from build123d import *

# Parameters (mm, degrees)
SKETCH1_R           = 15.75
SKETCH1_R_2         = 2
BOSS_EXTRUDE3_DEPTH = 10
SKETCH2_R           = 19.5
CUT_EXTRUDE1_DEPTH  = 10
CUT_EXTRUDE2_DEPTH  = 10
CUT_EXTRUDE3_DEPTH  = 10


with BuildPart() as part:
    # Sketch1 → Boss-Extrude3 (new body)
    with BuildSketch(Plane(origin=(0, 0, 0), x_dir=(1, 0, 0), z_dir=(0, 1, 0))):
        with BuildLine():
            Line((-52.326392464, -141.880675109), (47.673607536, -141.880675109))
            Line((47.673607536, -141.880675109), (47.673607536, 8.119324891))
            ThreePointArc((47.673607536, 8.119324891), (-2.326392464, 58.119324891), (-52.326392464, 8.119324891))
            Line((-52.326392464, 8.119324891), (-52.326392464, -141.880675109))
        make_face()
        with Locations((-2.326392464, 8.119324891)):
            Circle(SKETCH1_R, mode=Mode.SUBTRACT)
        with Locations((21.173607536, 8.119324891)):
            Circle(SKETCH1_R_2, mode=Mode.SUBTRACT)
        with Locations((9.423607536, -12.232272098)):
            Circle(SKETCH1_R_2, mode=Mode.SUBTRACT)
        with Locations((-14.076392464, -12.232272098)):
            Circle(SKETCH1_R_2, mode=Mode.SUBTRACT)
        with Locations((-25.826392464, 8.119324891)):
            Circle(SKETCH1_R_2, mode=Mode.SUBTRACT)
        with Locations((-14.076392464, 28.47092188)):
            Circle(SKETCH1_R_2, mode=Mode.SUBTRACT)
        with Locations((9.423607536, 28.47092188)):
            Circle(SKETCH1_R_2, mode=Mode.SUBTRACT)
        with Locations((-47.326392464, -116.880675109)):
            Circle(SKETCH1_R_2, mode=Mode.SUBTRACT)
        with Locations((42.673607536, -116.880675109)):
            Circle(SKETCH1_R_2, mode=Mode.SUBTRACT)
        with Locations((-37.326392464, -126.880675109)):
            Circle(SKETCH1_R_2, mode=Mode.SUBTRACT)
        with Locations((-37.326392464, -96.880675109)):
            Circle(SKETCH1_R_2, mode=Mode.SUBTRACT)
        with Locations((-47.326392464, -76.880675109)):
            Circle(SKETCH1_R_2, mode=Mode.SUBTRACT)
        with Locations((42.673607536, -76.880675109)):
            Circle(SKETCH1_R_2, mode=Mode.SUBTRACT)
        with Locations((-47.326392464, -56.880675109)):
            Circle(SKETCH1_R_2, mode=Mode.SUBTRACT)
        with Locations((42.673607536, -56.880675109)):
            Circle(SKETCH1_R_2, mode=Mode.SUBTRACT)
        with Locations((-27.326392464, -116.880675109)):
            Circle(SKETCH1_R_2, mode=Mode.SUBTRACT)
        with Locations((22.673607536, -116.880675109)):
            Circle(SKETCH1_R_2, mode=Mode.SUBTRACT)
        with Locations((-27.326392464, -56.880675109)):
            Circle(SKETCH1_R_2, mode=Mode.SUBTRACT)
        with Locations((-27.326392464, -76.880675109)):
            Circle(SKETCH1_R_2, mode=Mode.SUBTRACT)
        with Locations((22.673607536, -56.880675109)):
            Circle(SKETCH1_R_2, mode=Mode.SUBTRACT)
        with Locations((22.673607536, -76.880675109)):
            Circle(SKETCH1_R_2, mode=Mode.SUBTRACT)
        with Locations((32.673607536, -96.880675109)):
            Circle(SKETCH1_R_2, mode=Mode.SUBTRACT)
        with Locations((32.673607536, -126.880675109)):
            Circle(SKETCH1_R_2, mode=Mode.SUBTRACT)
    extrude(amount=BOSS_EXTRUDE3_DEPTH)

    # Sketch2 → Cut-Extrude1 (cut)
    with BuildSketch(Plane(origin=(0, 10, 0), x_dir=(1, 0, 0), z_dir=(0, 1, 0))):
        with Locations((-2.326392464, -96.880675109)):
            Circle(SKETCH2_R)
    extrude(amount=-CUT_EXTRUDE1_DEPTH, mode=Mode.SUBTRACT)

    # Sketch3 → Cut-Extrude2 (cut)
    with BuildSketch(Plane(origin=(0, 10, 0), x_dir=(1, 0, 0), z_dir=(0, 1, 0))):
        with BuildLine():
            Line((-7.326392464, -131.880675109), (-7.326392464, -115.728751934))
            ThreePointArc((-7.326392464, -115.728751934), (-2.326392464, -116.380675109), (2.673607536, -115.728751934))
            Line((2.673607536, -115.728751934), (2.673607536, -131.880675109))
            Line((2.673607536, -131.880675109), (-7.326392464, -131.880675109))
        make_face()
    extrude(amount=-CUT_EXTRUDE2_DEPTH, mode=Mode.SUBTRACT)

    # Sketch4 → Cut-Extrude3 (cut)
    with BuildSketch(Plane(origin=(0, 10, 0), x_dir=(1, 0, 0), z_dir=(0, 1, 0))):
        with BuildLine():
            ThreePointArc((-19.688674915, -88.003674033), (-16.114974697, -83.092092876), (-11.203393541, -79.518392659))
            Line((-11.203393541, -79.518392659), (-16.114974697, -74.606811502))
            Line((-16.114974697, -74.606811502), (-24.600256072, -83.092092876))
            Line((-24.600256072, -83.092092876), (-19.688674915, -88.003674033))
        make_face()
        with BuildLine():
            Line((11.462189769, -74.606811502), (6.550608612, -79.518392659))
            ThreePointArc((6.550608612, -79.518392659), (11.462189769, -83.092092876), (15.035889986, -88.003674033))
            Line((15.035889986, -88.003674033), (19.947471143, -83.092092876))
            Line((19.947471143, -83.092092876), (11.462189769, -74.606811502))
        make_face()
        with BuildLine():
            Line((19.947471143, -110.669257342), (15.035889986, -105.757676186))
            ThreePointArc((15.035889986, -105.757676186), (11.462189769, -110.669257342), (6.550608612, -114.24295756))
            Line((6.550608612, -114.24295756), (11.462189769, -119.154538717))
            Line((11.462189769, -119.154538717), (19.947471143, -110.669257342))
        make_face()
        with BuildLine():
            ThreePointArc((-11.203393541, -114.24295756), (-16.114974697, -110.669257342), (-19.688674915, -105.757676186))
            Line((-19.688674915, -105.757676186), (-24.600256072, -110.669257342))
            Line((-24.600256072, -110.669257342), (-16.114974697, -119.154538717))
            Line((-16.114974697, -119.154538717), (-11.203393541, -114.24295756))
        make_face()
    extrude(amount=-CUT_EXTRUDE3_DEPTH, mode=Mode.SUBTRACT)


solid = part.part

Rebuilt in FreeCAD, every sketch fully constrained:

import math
import FreeCAD as App
import Part
import Sketcher

doc = App.newDocument("Part")
body = doc.addObject("PartDesign::Body", "Body")

sketch1 = doc.addObject("Sketcher::SketchObject", "Sketch")
body.addObject(sketch1)
sketch1.AttachmentSupport = (doc.XZ_Plane, [""])
sketch1.MapMode = "FlatFace"
sketch1.addGeometry(Part.LineSegment(App.Vector(-52.3, 141.9, 0), App.Vector(47.7, 141.9, 0)), False)
sketch1.addGeometry(Part.LineSegment(App.Vector(47.7, 141.9, 0), App.Vector(47.7, -8.1, 0)), False)
sketch1.addGeometry(Part.ArcOfCircle(Part.Circle(App.Vector(-2.3, -8.1, 0), App.Vector(0, 0, 1), 50), math.radians(180), math.radians(360)), False)
sketch1.addGeometry(Part.LineSegment(App.Vector(-52.3, -8.1, 0), App.Vector(-52.3, 141.9, 0)), False)
sketch1.addGeometry(Part.Circle(App.Vector(-47.3, 116.9, 0), App.Vector(0, 0, 1), 2), False)
sketch1.addGeometry(Part.Circle(App.Vector(-37.3, 126.9, 0), App.Vector(0, 0, 1), 2), False)
sketch1.addGeometry(Part.Circle(App.Vector(-27.3, 116.9, 0), App.Vector(0, 0, 1), 2), False)
sketch1.addGeometry(Part.Circle(App.Vector(-37.3, 96.9, 0), App.Vector(0, 0, 1), 2), False)
sketch1.addGeometry(Part.Circle(App.Vector(-47.3, 76.9, 0), App.Vector(0, 0, 1), 2), False)
sketch1.addGeometry(Part.Circle(App.Vector(-27.3, 76.9, 0), App.Vector(0, 0, 1), 2), False)
sketch1.addGeometry(Part.Circle(App.Vector(-47.3, 56.9, 0), App.Vector(0, 0, 1), 2), False)
sketch1.addGeometry(Part.Circle(App.Vector(-27.3, 56.9, 0), App.Vector(0, 0, 1), 2), False)
sketch1.addGeometry(Part.Circle(App.Vector(32.7, 126.9, 0), App.Vector(0, 0, 1), 2), False)
sketch1.addGeometry(Part.Circle(App.Vector(22.7, 116.9, 0), App.Vector(0, 0, 1), 2), False)
sketch1.addGeometry(Part.Circle(App.Vector(42.7, 116.9, 0), App.Vector(0, 0, 1), 2), False)
sketch1.addGeometry(Part.Circle(App.Vector(32.7, 96.9, 0), App.Vector(0, 0, 1), 2), False)
sketch1.addGeometry(Part.Circle(App.Vector(22.7, 76.9, 0), App.Vector(0, 0, 1), 2), False)
sketch1.addGeometry(Part.Circle(App.Vector(42.7, 76.9, 0), App.Vector(0, 0, 1), 2), False)
sketch1.addGeometry(Part.Circle(App.Vector(22.7, 56.9, 0), App.Vector(0, 0, 1), 2), False)
sketch1.addGeometry(Part.Circle(App.Vector(42.7, 56.9, 0), App.Vector(0, 0, 1), 2), False)
sketch1.addGeometry(Part.Circle(App.Vector(-14.1, 12.2, 0), App.Vector(0, 0, 1), 2), False)
sketch1.addGeometry(Part.Circle(App.Vector(-25.8, -8.1, 0), App.Vector(0, 0, 1), 2), False)
sketch1.addGeometry(Part.Circle(App.Vector(-14.1, -28.5, 0), App.Vector(0, 0, 1), 2), False)
sketch1.addGeometry(Part.Circle(App.Vector(9.4, 12.2, 0), App.Vector(0, 0, 1), 2), False)
sketch1.addGeometry(Part.Circle(App.Vector(-2.3, -8.1, 0), App.Vector(0, 0, 1), 15.8), False)
sketch1.addGeometry(Part.Circle(App.Vector(9.4, -28.5, 0), App.Vector(0, 0, 1), 2), False)
sketch1.addGeometry(Part.Circle(App.Vector(21.2, -8.1, 0), App.Vector(0, 0, 1), 2), False)
sketch1.addConstraint(Sketcher.Constraint("Coincident", 0, 2, 1, 1))
sketch1.addConstraint(Sketcher.Constraint("Tangent", 1, 2, 2, 2))
sketch1.addConstraint(Sketcher.Constraint("Tangent", 2, 1, 3, 1))
sketch1.addConstraint(Sketcher.Constraint("Coincident", 3, 2, 0, 1))
sketch1.addConstraint(Sketcher.Constraint("Horizontal", 0))
sketch1.addConstraint(Sketcher.Constraint("Vertical", 1))
sketch1.addConstraint(Sketcher.Constraint("Vertical", 3))
sketch1.addConstraint(Sketcher.Constraint("Coincident", 24, 3, 2, 3))
sketch1.addConstraint(Sketcher.Constraint("Equal", 4, 5))
sketch1.addConstraint(Sketcher.Constraint("Equal", 5, 6))
sketch1.addConstraint(Sketcher.Constraint("Equal", 6, 7))
sketch1.addConstraint(Sketcher.Constraint("Equal", 7, 8))
sketch1.addConstraint(Sketcher.Constraint("Equal", 8, 9))
sketch1.addConstraint(Sketcher.Constraint("Equal", 9, 10))
sketch1.addConstraint(Sketcher.Constraint("Equal", 10, 11))
sketch1.addConstraint(Sketcher.Constraint("Equal", 11, 12))
sketch1.addConstraint(Sketcher.Constraint("Equal", 12, 13))
sketch1.addConstraint(Sketcher.Constraint("Equal", 13, 14))
sketch1.addConstraint(Sketcher.Constraint("Equal", 14, 15))
sketch1.addConstraint(Sketcher.Constraint("Equal", 15, 16))
sketch1.addConstraint(Sketcher.Constraint("Equal", 16, 17))
sketch1.addConstraint(Sketcher.Constraint("Equal", 17, 18))
sketch1.addConstraint(Sketcher.Constraint("Equal", 18, 19))
sketch1.addConstraint(Sketcher.Constraint("Equal", 19, 20))
sketch1.addConstraint(Sketcher.Constraint("Equal", 20, 21))
sketch1.addConstraint(Sketcher.Constraint("Equal", 21, 22))
sketch1.addConstraint(Sketcher.Constraint("Equal", 22, 23))
sketch1.addConstraint(Sketcher.Constraint("Equal", 23, 25))
sketch1.addConstraint(Sketcher.Constraint("Equal", 25, 26))
sketch1.addConstraint(Sketcher.Constraint("Horizontal", 4, 3, 6, 3))
sketch1.addConstraint(Sketcher.Constraint("Horizontal", 8, 3, 9, 3))
sketch1.addConstraint(Sketcher.Constraint("Horizontal", 10, 3, 11, 3))
sketch1.addConstraint(Sketcher.Constraint("Horizontal", 5, 3, 12, 3))
sketch1.addConstraint(Sketcher.Constraint("Horizontal", 6, 3, 13, 3))
sketch1.addConstraint(Sketcher.Constraint("Horizontal", 13, 3, 14, 3))
sketch1.addConstraint(Sketcher.Constraint("Horizontal", 7, 3, 15, 3))
sketch1.addConstraint(Sketcher.Constraint("Horizontal", 9, 3, 16, 3))
sketch1.addConstraint(Sketcher.Constraint("Horizontal", 16, 3, 17, 3))
sketch1.addConstraint(Sketcher.Constraint("Horizontal", 11, 3, 18, 3))
sketch1.addConstraint(Sketcher.Constraint("Horizontal", 18, 3, 19, 3))
sketch1.addConstraint(Sketcher.Constraint("Horizontal", 2, 3, 21, 3))
sketch1.addConstraint(Sketcher.Constraint("Horizontal", 20, 3, 23, 3))
sketch1.addConstraint(Sketcher.Constraint("Horizontal", 22, 3, 25, 3))
sketch1.addConstraint(Sketcher.Constraint("Horizontal", 24, 3, 26, 3))
sketch1.addConstraint(Sketcher.Constraint("Vertical", 5, 3, 7, 3))
sketch1.addConstraint(Sketcher.Constraint("Vertical", 4, 3, 8, 3))
sketch1.addConstraint(Sketcher.Constraint("Vertical", 6, 3, 9, 3))
sketch1.addConstraint(Sketcher.Constraint("Vertical", 8, 3, 10, 3))
sketch1.addConstraint(Sketcher.Constraint("Vertical", 9, 3, 11, 3))
sketch1.addConstraint(Sketcher.Constraint("Vertical", 12, 3, 15, 3))
sketch1.addConstraint(Sketcher.Constraint("Vertical", 13, 3, 16, 3))
sketch1.addConstraint(Sketcher.Constraint("Vertical", 14, 3, 17, 3))
sketch1.addConstraint(Sketcher.Constraint("Vertical", 16, 3, 18, 3))
sketch1.addConstraint(Sketcher.Constraint("Vertical", 17, 3, 19, 3))
sketch1.addConstraint(Sketcher.Constraint("Vertical", 20, 3, 22, 3))
sketch1.addConstraint(Sketcher.Constraint("Vertical", 23, 3, 25, 3))
sketch1.addConstraint(Sketcher.Constraint("Diameter", 4, 4.0))
sketch1.addConstraint(Sketcher.Constraint("Radius", 2, 50.0))
sketch1.addConstraint(Sketcher.Constraint("Diameter", 24, 31.5))
sketch1.addConstraint(Sketcher.Constraint("DistanceY", 1, 2, 1, 1, 150.0))
sketch1.addConstraint(Sketcher.Constraint("DistanceX", 4, 3, 2, 3, 45.0))
sketch1.addConstraint(Sketcher.Constraint("DistanceY", 2, 3, 4, 3, 125.0))
sketch1.addConstraint(Sketcher.Constraint("DistanceX", 4, 3, 5, 3, 10.0))
sketch1.addConstraint(Sketcher.Constraint("DistanceY", 4, 3, 5, 3, 10.0))
sketch1.addConstraint(Sketcher.Constraint("DistanceX", 5, 3, 6, 3, 10.0))
sketch1.addConstraint(Sketcher.Constraint("DistanceY", 7, 3, 4, 3, 20.0))
sketch1.addConstraint(Sketcher.Constraint("DistanceY", 8, 3, 7, 3, 20.0))
sketch1.addConstraint(Sketcher.Constraint("DistanceY", 10, 3, 8, 3, 20.0))
sketch1.addConstraint(Sketcher.Constraint("DistanceX", 6, 3, 12, 3, 60.0))
sketch1.addConstraint(Sketcher.Constraint("DistanceX", 13, 3, 12, 3, 10.0))
sketch1.addConstraint(Sketcher.Constraint("DistanceX", 12, 3, 14, 3, 10.0))
sketch1.addConstraint(Sketcher.Constraint("DistanceX", 21, 3, 2, 3, 23.5))
sketch1.addConstraint(Sketcher.Constraint("DistanceX", 20, 3, 23, 3, 23.5))
sketch1.addConstraint(Sketcher.Constraint("DistanceX", 2, 3, 26, 3, 23.5))
sketch1.addConstraint(Sketcher.Constraint("DistanceX", 20, 3, 2, 3, 11.75))
sketch1.addConstraint(Sketcher.Constraint("DistanceY", 22, 3, -1, 1, 28.470922))
sketch1.addConstraint(Sketcher.Constraint("DistanceX", 2, 3, -1, 1, 2.326392))
sketch1.addConstraint(Sketcher.Constraint("DistanceY", 2, 3, -1, 1, 8.119325))
sketch1.addConstraint(Sketcher.Constraint("DistanceY", -1, 1, 20, 3, 12.232272))
pad1 = doc.addObject("PartDesign::Pad", "Pad")
body.addObject(pad1)
pad1.Profile = sketch1
pad1.Length = 10
pad1.Reversed = True

sketch2 = doc.addObject("Sketcher::SketchObject", "Sketch001")
body.addObject(sketch2)
sketch2.AttachmentSupport = (doc.XZ_Plane, [""])
sketch2.MapMode = "FlatFace"
sketch2.AttachmentOffset = App.Placement(App.Vector(0, 0, -10), App.Rotation())
sketch2.addGeometry(Part.Circle(App.Vector(-2, 97, 0), App.Vector(0, 0, 1), 20), False)
sketch2.addConstraint(Sketcher.Constraint("Diameter", 0, 39.0))
sketch2.addConstraint(Sketcher.Constraint("DistanceX", 0, 3, -1, 1, 2.326392))
sketch2.addConstraint(Sketcher.Constraint("DistanceY", -1, 1, 0, 3, 96.880675))
pocket1 = doc.addObject("PartDesign::Pocket", "Pocket")
body.addObject(pocket1)
pocket1.Profile = sketch2
pocket1.Length = 10
pocket1.Reversed = True

sketch3 = doc.addObject("Sketcher::SketchObject", "Sketch002")
body.addObject(sketch3)
sketch3.AttachmentSupport = (doc.XZ_Plane, [""])
sketch3.MapMode = "FlatFace"
sketch3.AttachmentOffset = App.Placement(App.Vector(0, 0, -10), App.Rotation())
sketch3.addGeometry(Part.LineSegment(App.Vector(-7, 116, 0), App.Vector(-7, 132, 0)), False)
sketch3.addGeometry(Part.LineSegment(App.Vector(-7, 132, 0), App.Vector(3, 132, 0)), False)
sketch3.addGeometry(Part.LineSegment(App.Vector(3, 132, 0), App.Vector(3, 116, 0)), False)
sketch3.addGeometry(Part.ArcOfCircle(Part.Circle(App.Vector(-2, 97, 0), App.Vector(0, 0, 1), 20), math.radians(75), math.radians(105)), False)
sketch3.addConstraint(Sketcher.Constraint("Coincident", 0, 2, 1, 1))
sketch3.addConstraint(Sketcher.Constraint("Coincident", 1, 2, 2, 1))
sketch3.addConstraint(Sketcher.Constraint("Coincident", 2, 2, 3, 1))
sketch3.addConstraint(Sketcher.Constraint("Coincident", 3, 2, 0, 1))
sketch3.addConstraint(Sketcher.Constraint("Vertical", 0))
sketch3.addConstraint(Sketcher.Constraint("Horizontal", 1))
sketch3.addConstraint(Sketcher.Constraint("Vertical", 2))
sketch3.addConstraint(Sketcher.Constraint("Horizontal", 2, 2, 3, 2))
sketch3.addConstraint(Sketcher.Constraint("Radius", 3, 19.5))
sketch3.addConstraint(Sketcher.Constraint("DistanceX", 1, 1, 1, 2, 10.0))
sketch3.addConstraint(Sketcher.Constraint("DistanceY", 3, 3, 0, 2, 35.0))
sketch3.addConstraint(Sketcher.Constraint("DistanceY", -1, 1, 2, 2, 115.728752))
sketch3.addConstraint(Sketcher.Constraint("DistanceX", 3, 3, -1, 1, 2.326392))
pocket2 = doc.addObject("PartDesign::Pocket", "Pocket001")
body.addObject(pocket2)
pocket2.Profile = sketch3
pocket2.Length = 10
pocket2.Reversed = True

sketch4 = doc.addObject("Sketcher::SketchObject", "Sketch003")
body.addObject(sketch4)
sketch4.AttachmentSupport = (doc.XZ_Plane, [""])
sketch4.MapMode = "FlatFace"
sketch4.AttachmentOffset = App.Placement(App.Vector(0, 0, -10), App.Rotation())
sketch4.addGeometry(Part.ArcOfCircle(Part.Circle(App.Vector(-2, 97, 0), App.Vector(0, 0, 1), 20), math.radians(-153), math.radians(-117)), False)
sketch4.addGeometry(Part.LineSegment(App.Vector(-11, 80, 0), App.Vector(-16, 75, 0)), False)
sketch4.addGeometry(Part.LineSegment(App.Vector(-16, 75, 0), App.Vector(-25, 83, 0)), False)
sketch4.addGeometry(Part.LineSegment(App.Vector(-25, 83, 0), App.Vector(-20, 88, 0)), False)
sketch4.addGeometry(Part.LineSegment(App.Vector(11, 75, 0), App.Vector(7, 80, 0)), False)
sketch4.addGeometry(Part.ArcOfCircle(Part.Circle(App.Vector(-2, 97, 0), App.Vector(0, 0, 1), 19), math.radians(-63), math.radians(-27)), False)
sketch4.addGeometry(Part.LineSegment(App.Vector(15, 88, 0), App.Vector(20, 83, 0)), False)
sketch4.addGeometry(Part.LineSegment(App.Vector(20, 83, 0), App.Vector(11, 75, 0)), False)
sketch4.addGeometry(Part.LineSegment(App.Vector(20, 111, 0), App.Vector(15, 106, 0)), False)
sketch4.addGeometry(Part.ArcOfCircle(Part.Circle(App.Vector(-2, 97, 0), App.Vector(0, 0, 1), 20), math.radians(27), math.radians(63)), False)
sketch4.addGeometry(Part.LineSegment(App.Vector(7, 114, 0), App.Vector(11, 119, 0)), False)
sketch4.addGeometry(Part.LineSegment(App.Vector(11, 119, 0), App.Vector(20, 111, 0)), False)
sketch4.addGeometry(Part.ArcOfCircle(Part.Circle(App.Vector(-2, 97, 0), App.Vector(0, 0, 1), 20), math.radians(117), math.radians(153)), False)
sketch4.addGeometry(Part.LineSegment(App.Vector(-20, 106, 0), App.Vector(-25, 111, 0)), False)
sketch4.addGeometry(Part.LineSegment(App.Vector(-25, 111, 0), App.Vector(-16, 119, 0)), False)
sketch4.addGeometry(Part.LineSegment(App.Vector(-16, 119, 0), App.Vector(-11, 114, 0)), False)
sketch4.addConstraint(Sketcher.Constraint("Coincident", 0, 2, 1, 1))
sketch4.addConstraint(Sketcher.Constraint("Coincident", 1, 2, 2, 1))
sketch4.addConstraint(Sketcher.Constraint("Coincident", 2, 2, 3, 1))
sketch4.addConstraint(Sketcher.Constraint("Coincident", 3, 2, 0, 1))
sketch4.addConstraint(Sketcher.Constraint("Coincident", 4, 2, 5, 1))
sketch4.addConstraint(Sketcher.Constraint("Coincident", 5, 2, 6, 1))
sketch4.addConstraint(Sketcher.Constraint("Coincident", 6, 2, 7, 1))
sketch4.addConstraint(Sketcher.Constraint("Coincident", 7, 2, 4, 1))
sketch4.addConstraint(Sketcher.Constraint("Coincident", 8, 2, 9, 1))
sketch4.addConstraint(Sketcher.Constraint("Coincident", 9, 2, 10, 1))
sketch4.addConstraint(Sketcher.Constraint("Coincident", 10, 2, 11, 1))
sketch4.addConstraint(Sketcher.Constraint("Coincident", 11, 2, 8, 1))
sketch4.addConstraint(Sketcher.Constraint("Coincident", 12, 2, 13, 1))
sketch4.addConstraint(Sketcher.Constraint("Coincident", 13, 2, 14, 1))
sketch4.addConstraint(Sketcher.Constraint("Coincident", 14, 2, 15, 1))
sketch4.addConstraint(Sketcher.Constraint("Coincident", 15, 2, 12, 1))
sketch4.addConstraint(Sketcher.Constraint("Coincident", 5, 3, 0, 3))
sketch4.addConstraint(Sketcher.Constraint("Coincident", 9, 3, 0, 3))
sketch4.addConstraint(Sketcher.Constraint("Coincident", 12, 3, 0, 3))
sketch4.addConstraint(Sketcher.Constraint("Equal", 0, 5))
sketch4.addConstraint(Sketcher.Constraint("Equal", 5, 9))
sketch4.addConstraint(Sketcher.Constraint("Equal", 9, 12))
sketch4.addConstraint(Sketcher.Constraint("Perpendicular", 1, 2))
sketch4.addConstraint(Sketcher.Constraint("Perpendicular", 2, 3))
sketch4.addConstraint(Sketcher.Constraint("Perpendicular", 3, 4))
sketch4.addConstraint(Sketcher.Constraint("Parallel", 4, 6))
sketch4.addConstraint(Sketcher.Constraint("Perpendicular", 6, 7))
sketch4.addConstraint(Sketcher.Constraint("Parallel", 7, 8))
sketch4.addConstraint(Sketcher.Constraint("Parallel", 8, 10))
sketch4.addConstraint(Sketcher.Constraint("Perpendicular", 10, 11))
sketch4.addConstraint(Sketcher.Constraint("Parallel", 11, 13))
sketch4.addConstraint(Sketcher.Constraint("Perpendicular", 13, 14))
sketch4.addConstraint(Sketcher.Constraint("Perpendicular", 14, 15))
sketch4.addConstraint(Sketcher.Constraint("Horizontal", 0, 2, 4, 2))
sketch4.addConstraint(Sketcher.Constraint("Horizontal", 3, 2, 5, 2))
sketch4.addConstraint(Sketcher.Constraint("Horizontal", 2, 2, 6, 2))
sketch4.addConstraint(Sketcher.Constraint("Horizontal", 1, 2, 7, 2))
sketch4.addConstraint(Sketcher.Constraint("Horizontal", 8, 2, 12, 2))
sketch4.addConstraint(Sketcher.Constraint("Horizontal", 11, 2, 13, 2))
sketch4.addConstraint(Sketcher.Constraint("Horizontal", 10, 2, 14, 2))
sketch4.addConstraint(Sketcher.Constraint("Vertical", 5, 2, 8, 2))
sketch4.addConstraint(Sketcher.Constraint("Vertical", 4, 2, 9, 2))
sketch4.addConstraint(Sketcher.Constraint("Vertical", 7, 2, 10, 2))
sketch4.addConstraint(Sketcher.Constraint("Equal", 1, 3))
sketch4.addConstraint(Sketcher.Constraint("Radius", 0, 19.5))
sketch4.addConstraint(Sketcher.Constraint("Distance", 2, 12.0))
sketch4.addConstraint(Sketcher.Constraint("DistanceY", 0, 2, 2, 2, 3.5737))
sketch4.addConstraint(Sketcher.Constraint("DistanceY", -1, 1, 1, 2, 74.606812))
sketch4.addConstraint(Sketcher.Constraint("DistanceX", -1, 1, 4, 2, 6.550609))
pocket3 = doc.addObject("PartDesign::Pocket", "Pocket002")
body.addObject(pocket3)
pocket3.Profile = sketch4
pocket3.Length = 10
pocket3.Reversed = True

doc.recompute()
